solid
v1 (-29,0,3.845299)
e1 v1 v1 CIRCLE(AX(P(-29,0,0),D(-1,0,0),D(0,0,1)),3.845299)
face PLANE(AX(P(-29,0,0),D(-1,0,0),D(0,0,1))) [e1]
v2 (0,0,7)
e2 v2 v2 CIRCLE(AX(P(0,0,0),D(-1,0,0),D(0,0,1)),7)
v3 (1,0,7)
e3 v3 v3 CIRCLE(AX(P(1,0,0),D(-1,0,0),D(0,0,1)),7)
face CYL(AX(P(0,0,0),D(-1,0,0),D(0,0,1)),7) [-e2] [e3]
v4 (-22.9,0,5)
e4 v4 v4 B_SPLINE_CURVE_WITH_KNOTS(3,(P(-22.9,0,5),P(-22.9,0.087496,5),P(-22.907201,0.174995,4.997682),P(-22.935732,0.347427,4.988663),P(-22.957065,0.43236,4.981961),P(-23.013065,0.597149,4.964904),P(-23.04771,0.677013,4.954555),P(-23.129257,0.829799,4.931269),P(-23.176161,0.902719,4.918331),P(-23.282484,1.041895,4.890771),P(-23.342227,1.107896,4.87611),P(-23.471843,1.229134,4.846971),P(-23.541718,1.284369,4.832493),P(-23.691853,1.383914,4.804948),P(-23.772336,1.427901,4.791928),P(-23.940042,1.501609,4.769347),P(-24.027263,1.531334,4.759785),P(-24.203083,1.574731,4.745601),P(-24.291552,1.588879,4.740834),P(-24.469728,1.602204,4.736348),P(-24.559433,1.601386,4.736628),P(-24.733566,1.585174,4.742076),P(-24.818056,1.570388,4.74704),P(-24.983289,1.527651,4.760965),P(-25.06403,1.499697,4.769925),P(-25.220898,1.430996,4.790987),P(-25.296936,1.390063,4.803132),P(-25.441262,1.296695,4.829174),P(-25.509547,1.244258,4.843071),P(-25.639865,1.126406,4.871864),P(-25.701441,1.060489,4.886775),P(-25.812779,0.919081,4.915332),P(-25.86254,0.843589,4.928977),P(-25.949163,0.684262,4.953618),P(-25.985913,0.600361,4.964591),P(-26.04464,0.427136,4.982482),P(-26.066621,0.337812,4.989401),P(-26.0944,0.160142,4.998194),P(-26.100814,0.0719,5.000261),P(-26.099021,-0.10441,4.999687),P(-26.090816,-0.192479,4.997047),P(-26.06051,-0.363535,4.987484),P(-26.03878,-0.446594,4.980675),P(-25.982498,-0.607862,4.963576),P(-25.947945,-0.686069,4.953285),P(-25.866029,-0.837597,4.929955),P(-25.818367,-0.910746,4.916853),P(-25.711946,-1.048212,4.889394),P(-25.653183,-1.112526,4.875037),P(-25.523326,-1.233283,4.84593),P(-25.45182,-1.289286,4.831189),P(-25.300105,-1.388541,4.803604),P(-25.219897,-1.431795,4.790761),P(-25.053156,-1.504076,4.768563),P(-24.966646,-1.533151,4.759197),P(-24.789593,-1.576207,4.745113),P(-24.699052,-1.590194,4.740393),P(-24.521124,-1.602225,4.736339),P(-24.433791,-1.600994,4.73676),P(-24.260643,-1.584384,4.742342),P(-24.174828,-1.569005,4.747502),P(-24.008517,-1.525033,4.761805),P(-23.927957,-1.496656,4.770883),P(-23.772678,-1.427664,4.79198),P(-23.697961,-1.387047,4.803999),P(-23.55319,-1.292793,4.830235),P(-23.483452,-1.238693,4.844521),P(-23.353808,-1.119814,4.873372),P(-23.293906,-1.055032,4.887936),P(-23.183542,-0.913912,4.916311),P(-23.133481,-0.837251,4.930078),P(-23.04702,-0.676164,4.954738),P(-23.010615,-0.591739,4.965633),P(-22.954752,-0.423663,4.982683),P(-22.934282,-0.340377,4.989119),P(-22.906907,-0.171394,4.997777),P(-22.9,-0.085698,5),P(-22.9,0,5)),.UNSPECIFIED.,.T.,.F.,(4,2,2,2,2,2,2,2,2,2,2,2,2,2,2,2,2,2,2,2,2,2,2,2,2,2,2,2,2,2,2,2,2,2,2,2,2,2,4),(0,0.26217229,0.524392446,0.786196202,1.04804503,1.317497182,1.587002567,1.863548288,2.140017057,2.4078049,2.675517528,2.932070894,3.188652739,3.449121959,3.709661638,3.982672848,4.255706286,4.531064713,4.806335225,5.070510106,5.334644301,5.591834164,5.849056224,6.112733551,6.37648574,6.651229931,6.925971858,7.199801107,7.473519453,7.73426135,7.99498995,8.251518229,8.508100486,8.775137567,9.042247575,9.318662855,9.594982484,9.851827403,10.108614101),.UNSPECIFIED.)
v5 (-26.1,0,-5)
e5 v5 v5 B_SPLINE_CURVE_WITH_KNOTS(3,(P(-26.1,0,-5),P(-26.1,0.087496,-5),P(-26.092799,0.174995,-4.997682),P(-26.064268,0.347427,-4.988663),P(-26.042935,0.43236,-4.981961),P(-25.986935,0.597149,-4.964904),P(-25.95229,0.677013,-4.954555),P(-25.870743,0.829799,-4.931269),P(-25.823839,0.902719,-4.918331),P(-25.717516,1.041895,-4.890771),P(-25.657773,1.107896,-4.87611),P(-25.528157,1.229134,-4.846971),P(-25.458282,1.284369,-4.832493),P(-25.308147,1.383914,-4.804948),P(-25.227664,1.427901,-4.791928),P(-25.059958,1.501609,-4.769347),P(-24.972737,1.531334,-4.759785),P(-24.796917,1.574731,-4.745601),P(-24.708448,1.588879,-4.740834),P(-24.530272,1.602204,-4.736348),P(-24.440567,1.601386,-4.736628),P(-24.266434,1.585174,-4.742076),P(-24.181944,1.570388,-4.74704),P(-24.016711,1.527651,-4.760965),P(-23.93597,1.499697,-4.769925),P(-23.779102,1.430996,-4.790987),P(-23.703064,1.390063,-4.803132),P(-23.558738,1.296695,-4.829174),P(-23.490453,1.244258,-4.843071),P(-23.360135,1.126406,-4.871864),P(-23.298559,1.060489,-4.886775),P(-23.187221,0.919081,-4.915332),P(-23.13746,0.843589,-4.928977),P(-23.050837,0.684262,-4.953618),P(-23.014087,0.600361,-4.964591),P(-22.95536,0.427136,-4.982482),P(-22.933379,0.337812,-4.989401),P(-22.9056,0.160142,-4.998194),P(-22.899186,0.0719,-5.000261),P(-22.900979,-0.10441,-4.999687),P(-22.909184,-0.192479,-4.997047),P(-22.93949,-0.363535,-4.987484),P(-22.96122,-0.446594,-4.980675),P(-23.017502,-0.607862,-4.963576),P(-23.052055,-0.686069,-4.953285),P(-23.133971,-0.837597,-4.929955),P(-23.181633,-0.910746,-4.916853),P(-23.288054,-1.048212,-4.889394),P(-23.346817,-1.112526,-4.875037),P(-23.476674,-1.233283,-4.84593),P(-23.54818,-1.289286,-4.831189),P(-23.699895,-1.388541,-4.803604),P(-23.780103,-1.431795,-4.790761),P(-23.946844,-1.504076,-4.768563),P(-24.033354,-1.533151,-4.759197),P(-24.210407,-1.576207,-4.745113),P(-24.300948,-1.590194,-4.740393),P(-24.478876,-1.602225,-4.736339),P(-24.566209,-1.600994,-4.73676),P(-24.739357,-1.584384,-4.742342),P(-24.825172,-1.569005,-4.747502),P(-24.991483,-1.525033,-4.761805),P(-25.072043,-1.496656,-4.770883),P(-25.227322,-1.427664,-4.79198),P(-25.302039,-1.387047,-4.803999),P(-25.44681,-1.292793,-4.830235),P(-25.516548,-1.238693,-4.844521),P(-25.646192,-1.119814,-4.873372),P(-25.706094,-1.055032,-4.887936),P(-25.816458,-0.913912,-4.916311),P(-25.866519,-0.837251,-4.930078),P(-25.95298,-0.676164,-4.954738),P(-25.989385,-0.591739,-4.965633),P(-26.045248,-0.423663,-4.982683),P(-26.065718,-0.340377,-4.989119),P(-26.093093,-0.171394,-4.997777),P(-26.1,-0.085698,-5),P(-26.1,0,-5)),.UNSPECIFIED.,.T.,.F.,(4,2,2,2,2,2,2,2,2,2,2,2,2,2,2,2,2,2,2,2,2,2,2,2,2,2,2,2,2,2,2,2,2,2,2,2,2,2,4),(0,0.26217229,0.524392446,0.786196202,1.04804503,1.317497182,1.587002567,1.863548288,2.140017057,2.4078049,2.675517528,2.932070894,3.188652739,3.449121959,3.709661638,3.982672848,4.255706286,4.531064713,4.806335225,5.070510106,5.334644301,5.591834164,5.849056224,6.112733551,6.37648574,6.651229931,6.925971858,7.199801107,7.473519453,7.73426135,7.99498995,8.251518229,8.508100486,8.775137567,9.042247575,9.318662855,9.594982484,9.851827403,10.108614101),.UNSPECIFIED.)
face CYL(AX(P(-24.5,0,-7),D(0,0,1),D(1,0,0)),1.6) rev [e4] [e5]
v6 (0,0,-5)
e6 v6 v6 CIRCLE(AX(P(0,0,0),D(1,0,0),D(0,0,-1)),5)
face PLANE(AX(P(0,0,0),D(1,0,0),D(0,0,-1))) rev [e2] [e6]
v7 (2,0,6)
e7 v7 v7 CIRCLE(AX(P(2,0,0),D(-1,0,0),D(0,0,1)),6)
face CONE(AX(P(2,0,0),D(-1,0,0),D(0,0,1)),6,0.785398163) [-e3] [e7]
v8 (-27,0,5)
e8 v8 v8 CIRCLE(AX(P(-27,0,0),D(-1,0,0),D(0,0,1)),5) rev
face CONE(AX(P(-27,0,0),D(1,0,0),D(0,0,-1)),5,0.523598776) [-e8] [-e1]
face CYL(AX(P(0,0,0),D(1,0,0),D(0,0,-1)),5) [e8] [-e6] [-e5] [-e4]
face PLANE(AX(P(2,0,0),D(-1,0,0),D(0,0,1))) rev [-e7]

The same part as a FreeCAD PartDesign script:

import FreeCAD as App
import Part
import Sketcher

V = App.Vector


def edges_at(feature, points):
    """Names of the edges that pass closest to the given points."""
    edges = feature.Shape.Edges
    near = lambda p: min(range(len(edges)), key=lambda i: edges[i].distToShape(Part.Vertex(*p))[0])
    return sorted({f"Edge{near(p) + 1}" for p in points})


def add_polygon(sketch, points):
    """Adds a closed chain of lines whose ends are joined by coincident constraints."""
    first, n = sketch.GeometryCount, len(points)
    for a, b in zip(points, points[1:] + points[:1]):
        sketch.addGeometry(Part.LineSegment(App.Vector(*a, 0), App.Vector(*b, 0)), False)
    for i in range(n):
        sketch.addConstraint(Sketcher.Constraint("Coincident", first + i, 2, first + (i + 1) % n, 1))

doc = App.newDocument("Part")
body = doc.addObject("PartDesign::Body", "Body")

# Sketch on XY plane
sketch1 = body.newObject("Sketcher::SketchObject", "Sketch")
sketch1.AttachmentSupport = (doc.getObject("XY_Plane"), [""])
sketch1.MapMode = "FlatFace"
add_polygon(sketch1, [(-29, 5), (-29, 0), (0, 0), (0, 5)])  # lines 0-3
sketch1.addConstraint(Sketcher.Constraint("Vertical", 0))
sketch1.addConstraint(Sketcher.Constraint("Horizontal", 1))
sketch1.addConstraint(Sketcher.Constraint("Vertical", 2))
sketch1.addConstraint(Sketcher.Constraint("Horizontal", 3))
sketch1.addConstraint(Sketcher.Constraint("Coincident", 1, 2, -1, 1))
sketch1.addConstraint(Sketcher.Constraint("DistanceX", 1, 1, 1, 2, 29.0))
sketch1.addConstraint(Sketcher.Constraint("DistanceY", 0, 2, 0, 1, 5.0))
revolution = body.newObject("PartDesign::Revolution", "Revolution")
revolution.Profile = sketch1
revolution.ReferenceAxis = (sketch1, ["H_Axis"])
revolution.Angle = 360

# Sketch on XY plane
sketch2 = body.newObject("Sketcher::SketchObject", "Sketch001")
sketch2.AttachmentSupport = (doc.getObject("XY_Plane"), [""])
sketch2.MapMode = "FlatFace"
add_polygon(sketch2, [(0, 0), (2, 0), (2, 6), (1, 7), (0, 7)])  # lines 0-4
sketch2.addConstraint(Sketcher.Constraint("Horizontal", 0))
sketch2.addConstraint(Sketcher.Constraint("Vertical", 1))
sketch2.addConstraint(Sketcher.Constraint("Horizontal", 3))
sketch2.addConstraint(Sketcher.Constraint("Vertical", 4))
sketch2.addConstraint(Sketcher.Constraint("Coincident", 4, 2, -1, 1))
sketch2.addConstraint(Sketcher.Constraint("DistanceX", 0, 1, 0, 2, 2.0))
sketch2.addConstraint(Sketcher.Constraint("DistanceX", 3, 2, 3, 1, 1.0))
sketch2.addConstraint(Sketcher.Constraint("DistanceY", 1, 1, 1, 2, 6.0))
sketch2.addConstraint(Sketcher.Constraint("DistanceY", 4, 2, 4, 1, 7.0))
revolution2 = body.newObject("PartDesign::Revolution", "Revolution001")
revolution2.Profile = sketch2
revolution2.ReferenceAxis = (sketch2, ["H_Axis"])
revolution2.Angle = 360
doc.recompute()

chamfer = body.newObject("PartDesign::Chamfer", "Chamfer")
chamfer.Base = (revolution2, edges_at(revolution2, [(-29, -5, 0)]))
chamfer.ChamferType = "Two distances"
chamfer.Size = 2
chamfer.Size2 = 1.154701

# Sketch on XY plane
sketch3 = body.newObject("Sketcher::SketchObject", "Sketch002")
sketch3.AttachmentSupport = (doc.getObject("XY_Plane"), [""])
sketch3.MapMode = "FlatFace"
sketch3.addGeometry(Part.Circle(V(-24.5, 0, 0), V(0, 0, 1), 1.6), False)
sketch3.addConstraint(Sketcher.Constraint("PointOnObject", 0, 3, -1))
sketch3.addConstraint(Sketcher.Constraint("Diameter", 0, 3.2))
sketch3.addConstraint(Sketcher.Constraint("DistanceX", 0, 3, -1, 1, 24.5))
pocket1 = body.newObject("PartDesign::Pocket", "Pocket")
pocket1.Profile = sketch3
pocket1.Type = "ThroughAll"
pocket1.Midplane = True

doc.recompute()
